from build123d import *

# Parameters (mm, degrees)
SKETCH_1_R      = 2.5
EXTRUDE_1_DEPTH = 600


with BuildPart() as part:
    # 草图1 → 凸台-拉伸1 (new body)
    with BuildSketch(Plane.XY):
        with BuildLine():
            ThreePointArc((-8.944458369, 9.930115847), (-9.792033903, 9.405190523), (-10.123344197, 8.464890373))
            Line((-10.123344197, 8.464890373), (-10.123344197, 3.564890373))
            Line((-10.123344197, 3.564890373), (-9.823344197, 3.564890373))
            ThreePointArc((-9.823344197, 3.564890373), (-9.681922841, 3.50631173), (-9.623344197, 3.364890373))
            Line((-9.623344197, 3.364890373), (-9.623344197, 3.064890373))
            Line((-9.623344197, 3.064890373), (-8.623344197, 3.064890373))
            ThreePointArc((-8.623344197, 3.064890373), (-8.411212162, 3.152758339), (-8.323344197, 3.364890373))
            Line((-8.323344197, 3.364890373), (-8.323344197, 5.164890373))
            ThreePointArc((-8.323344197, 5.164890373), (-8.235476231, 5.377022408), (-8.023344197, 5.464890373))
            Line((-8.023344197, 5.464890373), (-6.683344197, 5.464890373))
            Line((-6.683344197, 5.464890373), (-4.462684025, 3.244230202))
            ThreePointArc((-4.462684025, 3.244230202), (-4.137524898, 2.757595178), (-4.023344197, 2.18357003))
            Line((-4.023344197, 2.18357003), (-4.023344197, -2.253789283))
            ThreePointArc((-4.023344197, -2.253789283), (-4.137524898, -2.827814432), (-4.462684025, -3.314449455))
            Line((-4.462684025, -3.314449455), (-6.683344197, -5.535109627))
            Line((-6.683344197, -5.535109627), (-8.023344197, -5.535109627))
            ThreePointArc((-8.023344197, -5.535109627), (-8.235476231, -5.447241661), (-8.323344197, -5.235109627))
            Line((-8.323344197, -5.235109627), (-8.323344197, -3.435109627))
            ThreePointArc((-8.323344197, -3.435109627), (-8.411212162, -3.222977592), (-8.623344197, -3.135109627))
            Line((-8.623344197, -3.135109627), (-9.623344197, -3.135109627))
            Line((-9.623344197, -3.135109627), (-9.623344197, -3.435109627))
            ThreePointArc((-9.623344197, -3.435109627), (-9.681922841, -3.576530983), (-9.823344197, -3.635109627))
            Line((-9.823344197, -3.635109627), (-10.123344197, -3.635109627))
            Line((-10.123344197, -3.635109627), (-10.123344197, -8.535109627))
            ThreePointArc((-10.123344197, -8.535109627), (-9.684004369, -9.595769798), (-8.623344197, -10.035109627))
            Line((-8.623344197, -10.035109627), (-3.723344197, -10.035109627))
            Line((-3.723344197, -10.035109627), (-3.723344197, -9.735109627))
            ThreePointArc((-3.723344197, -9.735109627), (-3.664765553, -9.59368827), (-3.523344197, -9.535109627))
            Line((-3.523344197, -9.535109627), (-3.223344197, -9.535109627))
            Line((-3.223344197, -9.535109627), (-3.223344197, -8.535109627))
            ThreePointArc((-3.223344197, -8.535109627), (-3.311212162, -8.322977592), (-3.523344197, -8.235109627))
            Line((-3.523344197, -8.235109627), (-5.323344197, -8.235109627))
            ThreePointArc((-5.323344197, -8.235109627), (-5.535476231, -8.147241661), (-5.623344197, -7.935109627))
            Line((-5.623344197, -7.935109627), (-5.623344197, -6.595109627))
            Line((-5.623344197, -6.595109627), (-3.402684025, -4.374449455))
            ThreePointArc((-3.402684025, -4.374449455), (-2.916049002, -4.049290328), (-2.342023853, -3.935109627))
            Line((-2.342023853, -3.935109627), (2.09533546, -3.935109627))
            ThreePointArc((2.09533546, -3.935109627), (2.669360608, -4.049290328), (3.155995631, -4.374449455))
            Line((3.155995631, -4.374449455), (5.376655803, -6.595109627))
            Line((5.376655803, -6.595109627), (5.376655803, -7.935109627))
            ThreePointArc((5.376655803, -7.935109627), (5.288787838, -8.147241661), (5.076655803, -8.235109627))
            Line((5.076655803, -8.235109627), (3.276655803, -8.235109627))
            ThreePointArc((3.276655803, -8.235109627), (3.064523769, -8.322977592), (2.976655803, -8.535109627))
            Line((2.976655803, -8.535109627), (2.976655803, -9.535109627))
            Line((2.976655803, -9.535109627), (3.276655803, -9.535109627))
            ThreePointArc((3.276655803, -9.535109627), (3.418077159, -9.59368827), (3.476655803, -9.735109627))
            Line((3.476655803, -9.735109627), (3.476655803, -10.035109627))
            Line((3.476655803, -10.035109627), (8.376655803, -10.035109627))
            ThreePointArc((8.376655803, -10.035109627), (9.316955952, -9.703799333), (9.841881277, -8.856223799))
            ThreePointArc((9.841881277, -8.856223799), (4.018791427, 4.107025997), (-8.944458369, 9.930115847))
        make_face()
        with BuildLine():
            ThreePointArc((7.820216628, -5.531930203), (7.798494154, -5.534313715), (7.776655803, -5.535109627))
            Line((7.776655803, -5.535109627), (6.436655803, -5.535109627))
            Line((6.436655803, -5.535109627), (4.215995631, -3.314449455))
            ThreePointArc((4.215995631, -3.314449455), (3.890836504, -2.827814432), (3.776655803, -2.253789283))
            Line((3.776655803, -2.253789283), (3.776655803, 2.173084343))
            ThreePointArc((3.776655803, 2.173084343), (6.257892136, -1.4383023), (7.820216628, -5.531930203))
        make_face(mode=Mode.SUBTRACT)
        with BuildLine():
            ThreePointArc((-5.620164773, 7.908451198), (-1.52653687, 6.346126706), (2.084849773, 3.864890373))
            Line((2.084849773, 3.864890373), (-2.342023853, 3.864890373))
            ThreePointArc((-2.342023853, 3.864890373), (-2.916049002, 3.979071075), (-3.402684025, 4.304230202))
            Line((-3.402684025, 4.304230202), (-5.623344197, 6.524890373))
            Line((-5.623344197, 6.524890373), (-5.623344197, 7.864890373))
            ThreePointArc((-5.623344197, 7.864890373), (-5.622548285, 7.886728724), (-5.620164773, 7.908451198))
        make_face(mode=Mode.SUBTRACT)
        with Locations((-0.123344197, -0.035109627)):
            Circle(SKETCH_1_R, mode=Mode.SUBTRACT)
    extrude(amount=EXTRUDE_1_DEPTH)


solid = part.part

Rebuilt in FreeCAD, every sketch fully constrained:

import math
import FreeCAD as App
import Part
import Sketcher

V = App.Vector

doc = App.newDocument("Part")
body = doc.addObject("PartDesign::Body", "Body")

sketch1 = body.newObject("Sketcher::SketchObject", "Sketch")
sketch1.AttachmentSupport = (doc.getObject("XY_Plane"), [""])
sketch1.MapMode = "FlatFace"
sketch1.addGeometry([
    Part.ArcOfCircle(Part.Circle(V(-8.623, 8.465, 0), V(0, 0, 1), 1.5), math.radians(102), math.radians(180)),
    Part.LineSegment(V(-10.123, 8.465, 0), V(-10.123, 3.565, 0)),
    Part.LineSegment(V(-10.123, 3.565, 0), V(-9.823, 3.565, 0)),
    Part.ArcOfCircle(Part.Circle(V(-9.823, 3.365, 0), V(0, 0, 1), 0.2), math.radians(0), math.radians(90)),
    Part.LineSegment(V(-9.623, 3.365, 0), V(-9.623, 3.065, 0)),
    Part.LineSegment(V(-9.623, 3.065, 0), V(-8.623, 3.065, 0)),
    Part.ArcOfCircle(Part.Circle(V(-8.623, 3.365, 0), V(0, 0, 1), 0.3), math.radians(-90), math.radians(0)),
    Part.LineSegment(V(-8.323, 3.365, 0), V(-8.323, 5.165, 0)),
    Part.ArcOfCircle(Part.Circle(V(-8.023, 5.165, 0), V(0, 0, 1), 0.3), math.radians(90), math.radians(180)),
    Part.LineSegment(V(-8.023, 5.465, 0), V(-6.683, 5.465, 0)),
    Part.LineSegment(V(-6.683, 5.465, 0), V(-4.463, 3.244, 0)),
    Part.ArcOfCircle(Part.Circle(V(-5.523, 2.184, 0), V(0, 0, 1), 1.5), math.radians(0), math.radians(45)),
    Part.LineSegment(V(-4.023, 2.184, 0), V(-4.023, -2.254, 0)),
    Part.ArcOfCircle(Part.Circle(V(-5.523, -2.254, 0), V(0, 0, 1), 1.5), math.radians(-45), math.radians(0)),
    Part.LineSegment(V(-4.463, -3.314, 0), V(-6.683, -5.535, 0)),
    Part.LineSegment(V(-6.683, -5.535, 0), V(-8.023, -5.535, 0)),
    Part.ArcOfCircle(Part.Circle(V(-8.023, -5.235, 0), V(0, 0, 1), 0.3), math.radians(-180), math.radians(-90)),
    Part.LineSegment(V(-8.323, -5.235, 0), V(-8.323, -3.435, 0)),
    Part.ArcOfCircle(Part.Circle(V(-8.623, -3.435, 0), V(0, 0, 1), 0.3), math.radians(0), math.radians(90)),
    Part.LineSegment(V(-8.623, -3.135, 0), V(-9.623, -3.135, 0)),
    Part.LineSegment(V(-9.623, -3.135, 0), V(-9.623, -3.435, 0)),
    Part.ArcOfCircle(Part.Circle(V(-9.823, -3.435, 0), V(0, 0, 1), 0.2), math.radians(-90), math.radians(0)),
    Part.LineSegment(V(-9.823, -3.635, 0), V(-10.123, -3.635, 0)),
    Part.LineSegment(V(-10.123, -3.635, 0), V(-10.123, -8.535, 0)),
    Part.ArcOfCircle(Part.Circle(V(-8.623, -8.535, 0), V(0, 0, 1), 1.5), math.radians(-180), math.radians(-90)),
    Part.LineSegment(V(-8.623, -10.035, 0), V(-3.723, -10.035, 0)),
    Part.LineSegment(V(-3.723, -10.035, 0), V(-3.723, -9.735, 0)),
    Part.ArcOfCircle(Part.Circle(V(-3.523, -9.735, 0), V(0, 0, 1), 0.2), math.radians(90), math.radians(180)),
    Part.LineSegment(V(-3.523, -9.535, 0), V(-3.223, -9.535, 0)),
    Part.LineSegment(V(-3.223, -9.535, 0), V(-3.223, -8.535, 0)),
    Part.ArcOfCircle(Part.Circle(V(-3.523, -8.535, 0), V(0, 0, 1), 0.3), math.radians(0), math.radians(90)),
    Part.LineSegment(V(-3.523, -8.235, 0), V(-5.323, -8.235, 0)),
    Part.ArcOfCircle(Part.Circle(V(-5.323, -7.935, 0), V(0, 0, 1), 0.3), math.radians(-180), math.radians(-90)),
    Part.LineSegment(V(-5.623, -7.935, 0), V(-5.623, -6.595, 0)),
    Part.LineSegment(V(-5.623, -6.595, 0), V(-3.403, -4.374, 0)),
    Part.ArcOfCircle(Part.Circle(V(-2.342, -5.435, 0), V(0, 0, 1), 1.5), math.radians(90), math.radians(135)),
    Part.LineSegment(V(-2.342, -3.935, 0), V(2.095, -3.935, 0)),
    Part.ArcOfCircle(Part.Circle(V(2.095, -5.435, 0), V(0, 0, 1), 1.5), math.radians(45), math.radians(90)),
    Part.LineSegment(V(3.156, -4.374, 0), V(5.377, -6.595, 0)),
    Part.LineSegment(V(5.377, -6.595, 0), V(5.377, -7.935, 0)),
    Part.ArcOfCircle(Part.Circle(V(5.077, -7.935, 0), V(0, 0, 1), 0.3), math.radians(-90), math.radians(0)),
    Part.LineSegment(V(5.077, -8.235, 0), V(3.277, -8.235, 0)),
    Part.ArcOfCircle(Part.Circle(V(3.277, -8.535, 0), V(0, 0, 1), 0.3), math.radians(90), math.radians(180)),
    Part.LineSegment(V(2.977, -8.535, 0), V(2.977, -9.535, 0)),
    Part.LineSegment(V(2.977, -9.535, 0), V(3.277, -9.535, 0)),
    Part.ArcOfCircle(Part.Circle(V(3.277, -9.735, 0), V(0, 0, 1), 0.2), math.radians(0), math.radians(90)),
    Part.LineSegment(V(3.477, -9.735, 0), V(3.477, -10.035, 0)),
    Part.LineSegment(V(3.477, -10.035, 0), V(8.377, -10.035, 0)),
    Part.ArcOfCircle(Part.Circle(V(8.377, -8.535, 0), V(0, 0, 1), 1.5), math.radians(-90), math.radians(-12)),
    Part.ArcOfCircle(Part.Circle(V(-10.123, -10.035, 0), V(0, 0, 1), 20), math.radians(3), math.radians(87)),
    Part.Circle(V(-0.123, -0.035, 0), V(0, 0, 1), 2.5),
    Part.ArcOfCircle(Part.Circle(V(-10.123, -10.035, 0), V(0, 0, 1), 18.5), math.radians(14), math.radians(41)),
    Part.ArcOfCircle(Part.Circle(V(7.777, -5.235, 0), V(0, 0, 1), 0.3), math.radians(-90), math.radians(-81.65)),
    Part.LineSegment(V(7.777, -5.535, 0), V(6.437, -5.535, 0)),
    Part.LineSegment(V(6.437, -5.535, 0), V(4.216, -3.314, 0)),
    Part.ArcOfCircle(Part.Circle(V(5.277, -2.254, 0), V(0, 0, 1), 1.5), math.radians(180), math.radians(225)),
    Part.LineSegment(V(3.777, -2.254, 0), V(3.777, 2.173, 0)),
    Part.ArcOfCircle(Part.Circle(V(-5.323, 7.865, 0), V(0, 0, 1), 0.3), math.radians(171.65), math.radians(180)),
    Part.ArcOfCircle(Part.Circle(V(-10.123, -10.035, 0), V(0, 0, 1), 18.5), math.radians(49), math.radians(76)),
    Part.LineSegment(V(2.085, 3.865, 0), V(-2.342, 3.865, 0)),
    Part.ArcOfCircle(Part.Circle(V(-2.342, 5.365, 0), V(0, 0, 1), 1.5), math.radians(-135), math.radians(-90)),
    Part.LineSegment(V(-3.403, 4.304, 0), V(-5.623, 6.525, 0)),
    Part.LineSegment(V(-5.623, 6.525, 0), V(-5.623, 7.865, 0)),
], False)
sketch1.addConstraint([
    Sketcher.Constraint("Tangent", 0, 2, 1, 1),
    Sketcher.Constraint("Coincident", 1, 2, 2, 1),
    Sketcher.Constraint("Tangent", 2, 2, 3, 2),
    Sketcher.Constraint("Tangent", 3, 1, 4, 1),
    Sketcher.Constraint("Coincident", 4, 2, 5, 1),
    Sketcher.Constraint("Tangent", 5, 2, 6, 1),
    Sketcher.Constraint("Tangent", 6, 2, 7, 1),
    Sketcher.Constraint("Tangent", 7, 2, 8, 2),
    Sketcher.Constraint("Tangent", 8, 1, 9, 1),
    Sketcher.Constraint("Coincident", 9, 2, 10, 1),
    Sketcher.Constraint("Tangent", 10, 2, 11, 2),
    Sketcher.Constraint("Tangent", 11, 1, 12, 1),
    Sketcher.Constraint("Tangent", 12, 2, 13, 2),
    Sketcher.Constraint("Tangent", 13, 1, 14, 1),
    Sketcher.Constraint("Coincident", 14, 2, 15, 1),
    Sketcher.Constraint("Tangent", 15, 2, 16, 2),
    Sketcher.Constraint("Tangent", 16, 1, 17, 1),
    Sketcher.Constraint("Tangent", 17, 2, 18, 1),
    Sketcher.Constraint("Tangent", 18, 2, 19, 1),
    Sketcher.Constraint("Coincident", 19, 2, 20, 1),
    Sketcher.Constraint("Tangent", 20, 2, 21, 2),
    Sketcher.Constraint("Tangent", 21, 1, 22, 1),
    Sketcher.Constraint("Coincident", 22, 2, 23, 1),
    Sketcher.Constraint("Tangent", 23, 2, 24, 1),
    Sketcher.Constraint("Tangent", 24, 2, 25, 1),
    Sketcher.Constraint("Coincident", 25, 2, 26, 1),
    Sketcher.Constraint("Tangent", 26, 2, 27, 2),
    Sketcher.Constraint("Tangent", 27, 1, 28, 1),
    Sketcher.Constraint("Coincident", 28, 2, 29, 1),
    Sketcher.Constraint("Tangent", 29, 2, 30, 1),
    Sketcher.Constraint("Tangent", 30, 2, 31, 1),
    Sketcher.Constraint("Tangent", 31, 2, 32, 2),
    Sketcher.Constraint("Tangent", 32, 1, 33, 1),
    Sketcher.Constraint("Coincident", 33, 2, 34, 1),
    Sketcher.Constraint("Tangent", 34, 2, 35, 2),
    Sketcher.Constraint("Tangent", 35, 1, 36, 1),
    Sketcher.Constraint("Tangent", 36, 2, 37, 2),
    Sketcher.Constraint("Tangent", 37, 1, 38, 1),
    Sketcher.Constraint("Coincident", 38, 2, 39, 1),
    Sketcher.Constraint("Tangent", 39, 2, 40, 2),
    Sketcher.Constraint("Tangent", 40, 1, 41, 1),
    Sketcher.Constraint("Tangent", 41, 2, 42, 1),
    Sketcher.Constraint("Tangent", 42, 2, 43, 1),
    Sketcher.Constraint("Coincident", 43, 2, 44, 1),
    Sketcher.Constraint("Tangent", 44, 2, 45, 2),
    Sketcher.Constraint("Tangent", 45, 1, 46, 1),
    Sketcher.Constraint("Coincident", 46, 2, 47, 1),
    Sketcher.Constraint("Tangent", 47, 2, 48, 1),
    Sketcher.Constraint("Coincident", 48, 2, 49, 1),
    Sketcher.Constraint("Coincident", 49, 2, 0, 1),
    Sketcher.Constraint("Coincident", 51, 1, 52, 2),
    Sketcher.Constraint("Tangent", 52, 1, 53, 1),
    Sketcher.Constraint("Coincident", 53, 2, 54, 1),
    Sketcher.Constraint("Tangent", 54, 2, 55, 2),
    Sketcher.Constraint("Tangent", 55, 1, 56, 1),
    Sketcher.Constraint("Coincident", 56, 2, 51, 2),
    Sketcher.Constraint("Coincident", 57, 1, 58, 2),
    Sketcher.Constraint("Coincident", 58, 1, 59, 1),
    Sketcher.Constraint("Tangent", 59, 2, 60, 2),
    Sketcher.Constraint("Tangent", 60, 1, 61, 1),
    Sketcher.Constraint("Coincident", 61, 2, 62, 1),
    Sketcher.Constraint("Tangent", 62, 2, 57, 2),
    Sketcher.Constraint("Vertical", 1),
    Sketcher.Constraint("Horizontal", 2),
    Sketcher.Constraint("Vertical", 4),
    Sketcher.Constraint("Horizontal", 5),
    Sketcher.Constraint("Vertical", 7),
    Sketcher.Constraint("Horizontal", 9),
    Sketcher.Constraint("Vertical", 12),
    Sketcher.Constraint("Horizontal", 15),
    Sketcher.Constraint("Vertical", 17),
    Sketcher.Constraint("Horizontal", 19),
    Sketcher.Constraint("Vertical", 20),
    Sketcher.Constraint("Horizontal", 22),
    Sketcher.Constraint("Vertical", 23),
    Sketcher.Constraint("Horizontal", 25),
    Sketcher.Constraint("Vertical", 26),
    Sketcher.Constraint("Horizontal", 28),
    Sketcher.Constraint("Vertical", 29),
    Sketcher.Constraint("Horizontal", 31),
    Sketcher.Constraint("Vertical", 33),
    Sketcher.Constraint("Horizontal", 36),
    Sketcher.Constraint("Vertical", 39),
    Sketcher.Constraint("Horizontal", 41),
    Sketcher.Constraint("Vertical", 43),
    Sketcher.Constraint("Horizontal", 44),
    Sketcher.Constraint("Vertical", 46),
    Sketcher.Constraint("Horizontal", 47),
    Sketcher.Constraint("Horizontal", 53),
    Sketcher.Constraint("Vertical", 56),
    Sketcher.Constraint("Horizontal", 59),
    Sketcher.Constraint("Vertical", 62),
    Sketcher.Constraint("Coincident", 51, 3, 49, 3),
    Sketcher.Constraint("Coincident", 58, 3, 49, 3),
    Sketcher.Constraint("Equal", 6, 8),
    Sketcher.Constraint("Equal", 0, 11),
    Sketcher.Constraint("Equal", 11, 13),
    Sketcher.Constraint("Equal", 8, 16),
    Sketcher.Constraint("Equal", 16, 18),
    Sketcher.Constraint("Equal", 3, 21),
    Sketcher.Constraint("Equal", 13, 24),
    Sketcher.Constraint("Equal", 21, 27),
    Sketcher.Constraint("Equal", 18, 30),
    Sketcher.Constraint("Equal", 30, 32),
    Sketcher.Constraint("Equal", 24, 35),
    Sketcher.Constraint("Equal", 35, 37),
    Sketcher.Constraint("Equal", 32, 40),
    Sketcher.Constraint("Equal", 40, 42),
    Sketcher.Constraint("Equal", 27, 45),
    Sketcher.Constraint("Equal", 37, 48),
    Sketcher.Constraint("Equal", 42, 52),
    Sketcher.Constraint("Equal", 48, 55),
    Sketcher.Constraint("Equal", 52, 57),
    Sketcher.Constraint("Equal", 51, 58),
    Sketcher.Constraint("Equal", 55, 60),
    Sketcher.Constraint("Perpendicular", 10, 14),
    Sketcher.Constraint("Parallel", 14, 34),
    Sketcher.Constraint("Perpendicular", 34, 38),
    Sketcher.Constraint("Parallel", 38, 54),
    Sketcher.Constraint("Parallel", 54, 61),
    Sketcher.Constraint("Horizontal", 3, 3, 6, 3),
    Sketcher.Constraint("Horizontal", 18, 3, 21, 3),
    Sketcher.Constraint("Horizontal", 24, 3, 30, 3),
    Sketcher.Constraint("Horizontal", 32, 3, 40, 3),
    Sketcher.Constraint("Horizontal", 27, 3, 45, 3),
    Sketcher.Constraint("Horizontal", 42, 3, 48, 3),
    Sketcher.Constraint("Horizontal", 16, 3, 52, 3),
    Sketcher.Constraint("Horizontal", 13, 3, 55, 3),
    Sketcher.Constraint("Horizontal", 58, 3, 24, 2),
    Sketcher.Constraint("Horizontal", 34, 2, 37, 1),
    Sketcher.Constraint("Horizontal", 33, 2, 38, 2),
    Sketcher.Constraint("Vertical", 0, 3, 6, 3),
    Sketcher.Constraint("Vertical", 8, 3, 16, 3),
    Sketcher.Constraint("Vertical", 3, 3, 21, 3),
    Sketcher.Constraint("Vertical", 18, 3, 24, 3),
    Sketcher.Constraint("Vertical", 27, 3, 30, 3),
    Sketcher.Constraint("Vertical", 42, 3, 45, 3),
    Sketcher.Constraint("Vertical", 32, 3, 57, 3),
    Sketcher.Constraint("Vertical", 35, 3, 60, 3),
    Sketcher.Constraint("Vertical", 58, 3, 0, 2),
    Sketcher.Constraint("Vertical", 9, 2, 14, 2),
    Sketcher.Constraint("Equal", 22, 28),
    Sketcher.Constraint("Equal", 31, 41),
    Sketcher.Constraint("Equal", 25, 47),
    Sketcher.Constraint("Equal", 15, 53),
    Sketcher.Constraint("Equal", 47, 1),
    Sketcher.Constraint("Equal", 41, 7),
    Sketcher.Constraint("Equal", 36, 12),
    Sketcher.Constraint("Equal", 7, 17),
    Sketcher.Constraint("Equal", 1, 23),
    Sketcher.Constraint("Equal", 20, 26),
    Sketcher.Constraint("Equal", 53, 33),
    Sketcher.Constraint("Equal", 59, 56),
    Sketcher.Constraint("Equal", 39, 62),
    Sketcher.Constraint("Equal", 14, 34),
    Sketcher.Constraint("Diameter", 50, 5.0),
    Sketcher.Constraint("Radius", 49, 20.0),
    Sketcher.Constraint("Radius", 0, 1.5),
    Sketcher.Constraint("Radius", 3, 0.2),
    Sketcher.Constraint("Radius", 6, 0.3),
    Sketcher.Constraint("Radius", 51, 18.5),
    Sketcher.Constraint("DistanceX", 25, 1, 25, 2, 4.9),
    Sketcher.Constraint("DistanceX", 31, 2, 31, 1, 1.8),
    Sketcher.Constraint("DistanceX", 9, 1, 9, 2, 1.34),
    Sketcher.Constraint("DistanceX", 36, 1, 36, 2, 4.437359),
    Sketcher.Constraint("DistanceX", 59, 2, 59, 1, 4.426874),
    Sketcher.Constraint("DistanceY", -1, 1, 0, 3, 8.46489),
    Sketcher.Constraint("DistanceY", -1, 1, 11, 3, 2.18357),
    Sketcher.Constraint("DistanceY", 50, 3, -1, 1, 0.03511),
    Sketcher.Constraint("DistanceX", -1, 1, 48, 2, 9.841881),
    Sketcher.Constraint("DistanceX", 50, 3, -1, 1, 0.123344),
])
pad1 = body.newObject("PartDesign::Pad", "Pad")
pad1.Profile = sketch1
pad1.Length = 600

doc.recompute()
